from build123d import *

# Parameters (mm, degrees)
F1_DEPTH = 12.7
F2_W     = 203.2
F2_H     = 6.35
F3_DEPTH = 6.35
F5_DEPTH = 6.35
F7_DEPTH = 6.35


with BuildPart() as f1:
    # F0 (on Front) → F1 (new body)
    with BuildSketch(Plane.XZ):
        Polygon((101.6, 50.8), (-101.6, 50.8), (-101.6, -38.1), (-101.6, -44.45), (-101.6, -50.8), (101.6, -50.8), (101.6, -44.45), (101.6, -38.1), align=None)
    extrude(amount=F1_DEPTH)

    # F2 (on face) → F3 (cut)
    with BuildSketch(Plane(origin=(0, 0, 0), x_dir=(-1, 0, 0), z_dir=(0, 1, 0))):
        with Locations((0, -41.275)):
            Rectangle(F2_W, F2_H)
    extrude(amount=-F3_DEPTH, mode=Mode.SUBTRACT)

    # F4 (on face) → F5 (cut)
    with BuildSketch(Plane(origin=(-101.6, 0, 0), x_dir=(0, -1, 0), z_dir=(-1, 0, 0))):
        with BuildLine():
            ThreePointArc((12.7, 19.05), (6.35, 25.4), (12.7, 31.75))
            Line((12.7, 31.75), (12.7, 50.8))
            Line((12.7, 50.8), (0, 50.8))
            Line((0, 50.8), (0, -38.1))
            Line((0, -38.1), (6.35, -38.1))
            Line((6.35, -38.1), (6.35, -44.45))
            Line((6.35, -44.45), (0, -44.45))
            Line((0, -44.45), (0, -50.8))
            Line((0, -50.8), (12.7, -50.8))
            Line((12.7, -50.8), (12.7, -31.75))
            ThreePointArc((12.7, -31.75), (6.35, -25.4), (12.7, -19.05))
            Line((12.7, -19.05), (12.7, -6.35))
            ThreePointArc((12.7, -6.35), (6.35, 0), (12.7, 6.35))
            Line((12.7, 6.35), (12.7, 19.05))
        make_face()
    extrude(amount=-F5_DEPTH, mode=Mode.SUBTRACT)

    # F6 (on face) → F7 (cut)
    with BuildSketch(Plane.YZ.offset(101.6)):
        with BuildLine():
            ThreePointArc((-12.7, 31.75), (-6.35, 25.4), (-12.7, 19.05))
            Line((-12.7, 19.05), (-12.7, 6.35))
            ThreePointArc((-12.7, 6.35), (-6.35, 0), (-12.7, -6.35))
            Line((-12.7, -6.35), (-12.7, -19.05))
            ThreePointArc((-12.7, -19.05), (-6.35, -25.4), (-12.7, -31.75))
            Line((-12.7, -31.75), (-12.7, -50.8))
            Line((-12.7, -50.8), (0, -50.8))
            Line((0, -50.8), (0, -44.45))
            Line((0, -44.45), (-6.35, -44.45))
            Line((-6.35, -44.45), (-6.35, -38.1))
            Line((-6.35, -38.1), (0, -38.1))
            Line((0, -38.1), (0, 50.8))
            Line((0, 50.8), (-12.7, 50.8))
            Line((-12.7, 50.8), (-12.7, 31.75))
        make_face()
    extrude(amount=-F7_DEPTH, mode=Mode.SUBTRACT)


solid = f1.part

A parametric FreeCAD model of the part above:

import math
import FreeCAD as App
import Part
import Sketcher
Q = App.Units.Quantity

doc = App.newDocument("Part")
body = doc.addObject("PartDesign::Body", "Body")

# Sketch on XZ plane
sketch1 = doc.addObject("Sketcher::SketchObject", "Sketch")
body.addObject(sketch1)
sketch1.AttachmentSupport = (doc.XZ_Plane, [""])
sketch1.MapMode = "FlatFace"
sketch1.addGeometry([
    Part.LineSegment(App.Vector(101.6, 50.8, 0), App.Vector(-101.6, 50.8, 0)),
    Part.LineSegment(App.Vector(-101.6, 50.8, 0), App.Vector(-101.6, -50.8, 0)),
    Part.LineSegment(App.Vector(-101.6, -50.8, 0), App.Vector(101.6, -50.8, 0)),
    Part.LineSegment(App.Vector(101.6, -50.8, 0), App.Vector(101.6, 50.8, 0)),
], False)
sketch1.addConstraint([
    Sketcher.Constraint("Coincident", 0, 2, 1, 1),
    Sketcher.Constraint("Coincident", 1, 2, 2, 1),
    Sketcher.Constraint("Coincident", 2, 2, 3, 1),
    Sketcher.Constraint("Coincident", 3, 2, 0, 1),
    Sketcher.Constraint("Horizontal", 0),
    Sketcher.Constraint("Vertical", 1),
    Sketcher.Constraint("Horizontal", 2),
    Sketcher.Constraint("Vertical", 3),
    Sketcher.Constraint("Symmetric", 0, 2, 2, 2, -1, 1),
    Sketcher.Constraint("DistanceX", 0, 2, 0, 1, Q("8 in")),
    Sketcher.Constraint("DistanceY", 1, 2, 1, 1, Q("4 in")),
])
pad1 = doc.addObject("PartDesign::Pad", "Pad")
body.addObject(pad1)
pad1.Profile = sketch1
pad1.Length = Q("0.5 in")

# Sketch on XZ plane
sketch2 = doc.addObject("Sketcher::SketchObject", "Sketch001")
body.addObject(sketch2)
sketch2.AttachmentSupport = (doc.XZ_Plane, [""])
sketch2.MapMode = "FlatFace"
sketch2.addGeometry([
    Part.LineSegment(App.Vector(101.6, -38.1, 0), App.Vector(101.6, -44.45, 0)),
    Part.LineSegment(App.Vector(101.6, -44.45, 0), App.Vector(-101.6, -44.45, 0)),
    Part.LineSegment(App.Vector(-101.6, -44.45, 0), App.Vector(-101.6, -38.1, 0)),
    Part.LineSegment(App.Vector(-101.6, -38.1, 0), App.Vector(101.6, -38.1, 0)),
], False)
sketch2.addConstraint([
    Sketcher.Constraint("Coincident", 0, 2, 1, 1),
    Sketcher.Constraint("Coincident", 1, 2, 2, 1),
    Sketcher.Constraint("Coincident", 2, 2, 3, 1),
    Sketcher.Constraint("Coincident", 3, 2, 0, 1),
    Sketcher.Constraint("Vertical", 0),
    Sketcher.Constraint("Horizontal", 1),
    Sketcher.Constraint("Vertical", 2),
    Sketcher.Constraint("Horizontal", 3),
    Sketcher.Constraint("DistanceX", 1, 2, 1, 1, Q("8 in")),
    Sketcher.Constraint("DistanceX", -1, 1, 0, 2, Q("4 in")),
    Sketcher.Constraint("DistanceY", 0, 2, 0, 1, Q("0.25 in")),
    Sketcher.Constraint("DistanceY", 2, 2, -1, 1, Q("1.5 in")),
])
pocket1 = doc.addObject("PartDesign::Pocket", "Pocket")
body.addObject(pocket1)
pocket1.Profile = sketch2
pocket1.Length = Q("0.25 in")
pocket1.Reversed = True

# Sketch on YZ plane
sketch3 = doc.addObject("Sketcher::SketchObject", "Sketch002")
body.addObject(sketch3)
sketch3.AttachmentSupport = (doc.YZ_Plane, [""])
sketch3.MapMode = "FlatFace"
sketch3.AttachmentOffset = App.Placement(App.Vector(0, 0, -4 * 25.4), App.Rotation())
sketch3.addGeometry([
    Part.ArcOfCircle(Part.Circle(App.Vector(-12.7, 25.4, 0), App.Vector(0, 0, 1), 6.35), math.radians(-90), math.radians(90)),  # 0
    Part.LineSegment(App.Vector(-12.7, 31.75, 0), App.Vector(-12.7, 50.8, 0)),  # 1
    Part.LineSegment(App.Vector(-12.7, 50.8, 0), App.Vector(0, 50.8, 0)),  # 2
    Part.LineSegment(App.Vector(0, 50.8, 0), App.Vector(0, -38.1, 0)),  # 3
    Part.LineSegment(App.Vector(0, -38.1, 0), App.Vector(-6.35, -38.1, 0)),  # 4
    Part.LineSegment(App.Vector(-6.35, -38.1, 0), App.Vector(-6.35, -44.45, 0)),  # 5
    Part.LineSegment(App.Vector(-6.35, -44.45, 0), App.Vector(0, -44.45, 0)),  # 6
    Part.LineSegment(App.Vector(0, -44.45, 0), App.Vector(0, -50.8, 0)),  # 7
    Part.LineSegment(App.Vector(0, -50.8, 0), App.Vector(-12.7, -50.8, 0)),  # 8
    Part.LineSegment(App.Vector(-12.7, -50.8, 0), App.Vector(-12.7, -31.75, 0)),  # 9
    Part.ArcOfCircle(Part.Circle(App.Vector(-12.7, -25.4, 0), App.Vector(0, 0, 1), 6.35), math.radians(-90), math.radians(90)),  # 10
    Part.LineSegment(App.Vector(-12.7, -19.05, 0), App.Vector(-12.7, -6.35, 0)),  # 11
    Part.ArcOfCircle(Part.Circle(App.Vector(-12.7, 0, 0), App.Vector(0, 0, 1), 6.35), math.radians(-90), math.radians(90)),  # 12
    Part.LineSegment(App.Vector(-12.7, 6.35, 0), App.Vector(-12.7, 19.05, 0)),  # 13
], False)
sketch3.addConstraint([
    Sketcher.Constraint("Coincident", 0, 2, 1, 1),
    Sketcher.Constraint("Coincident", 1, 2, 2, 1),
    Sketcher.Constraint("Coincident", 2, 2, 3, 1),
    Sketcher.Constraint("Coincident", 3, 2, 4, 1),
    Sketcher.Constraint("Coincident", 4, 2, 5, 1),
    Sketcher.Constraint("Coincident", 5, 2, 6, 1),
    Sketcher.Constraint("Coincident", 6, 2, 7, 1),
    Sketcher.Constraint("Coincident", 7, 2, 8, 1),
    Sketcher.Constraint("Coincident", 8, 2, 9, 1),
    Sketcher.Constraint("Coincident", 9, 2, 10, 1),
    Sketcher.Constraint("Coincident", 10, 2, 11, 1),
    Sketcher.Constraint("Coincident", 11, 2, 12, 1),
    Sketcher.Constraint("Coincident", 12, 2, 13, 1),
    Sketcher.Constraint("Coincident", 13, 2, 0, 1),
    Sketcher.Constraint("Vertical", 1),
    Sketcher.Constraint("Horizontal", 2),
    Sketcher.Constraint("Vertical", 3),
    Sketcher.Constraint("Horizontal", 4),
    Sketcher.Constraint("Vertical", 5),
    Sketcher.Constraint("Horizontal", 6),
    Sketcher.Constraint("Vertical", 7),
    Sketcher.Constraint("Horizontal", 8),
    Sketcher.Constraint("Vertical", 9),
    Sketcher.Constraint("Vertical", 11),
    Sketcher.Constraint("Vertical", 13),
    Sketcher.Constraint("Equal", 0, 10),
    Sketcher.Constraint("Equal", 10, 12),
    Sketcher.Constraint("Symmetric", 2, 2, 7, 2, -1, 1),
    Sketcher.Constraint("Symmetric", 0, 3, 10, 3, -1),
    Sketcher.Constraint("Symmetric", 11, 2, 12, 2, -1),
    Sketcher.Constraint("PointOnObject", 2, 2, -2),
    Sketcher.Constraint("Vertical", 10, 3, 12, 3),
    Sketcher.Constraint("Vertical", 12, 3, 0, 2),
    Sketcher.Constraint("Vertical", 1, 2, 8, 2),
    Sketcher.Constraint("Vertical", 9, 2, 10, 2),
    Sketcher.Constraint("Equal", 6, 5),
    Sketcher.Constraint("Equal", 5, 7),
    Sketcher.Constraint("Equal", 8, 11),
    Sketcher.Constraint("Radius", 0, Q("0.25 in")),
    Sketcher.Constraint("DistanceX", 2, 1, 2, 2, Q("0.5 in")),
    Sketcher.Constraint("DistanceY", 3, 2, 3, 1, Q("3.5 in")),
    Sketcher.Constraint("DistanceY", -1, 1, 1, 2, Q("2 in")),
])
pocket2 = doc.addObject("PartDesign::Pocket", "Pocket001")
body.addObject(pocket2)
pocket2.Profile = sketch3
pocket2.Length = Q("0.25 in")
pocket2.Reversed = True

# Sketch on YZ plane
sketch4 = doc.addObject("Sketcher::SketchObject", "Sketch003")
body.addObject(sketch4)
sketch4.AttachmentSupport = (doc.YZ_Plane, [""])
sketch4.MapMode = "FlatFace"
sketch4.AttachmentOffset = App.Placement(App.Vector(0, 0, 4 * 25.4), App.Rotation())
sketch4.addGeometry([
    Part.ArcOfCircle(Part.Circle(App.Vector(-12.7, 25.4, 0), App.Vector(0, 0, 1), 6.35), math.radians(-90), math.radians(90)),  # 0
    Part.LineSegment(App.Vector(-12.7, 19.05, 0), App.Vector(-12.7, 6.35, 0)),  # 1
    Part.ArcOfCircle(Part.Circle(App.Vector(-12.7, 0, 0), App.Vector(0, 0, 1), 6.35), math.radians(-90), math.radians(90)),  # 2
    Part.LineSegment(App.Vector(-12.7, -6.35, 0), App.Vector(-12.7, -19.05, 0)),  # 3
    Part.ArcOfCircle(Part.Circle(App.Vector(-12.7, -25.4, 0), App.Vector(0, 0, 1), 6.35), math.radians(-90), math.radians(90)),  # 4
    Part.LineSegment(App.Vector(-12.7, -31.75, 0), App.Vector(-12.7, -50.8, 0)),  # 5
    Part.LineSegment(App.Vector(-12.7, -50.8, 0), App.Vector(0, -50.8, 0)),  # 6
    Part.LineSegment(App.Vector(0, -50.8, 0), App.Vector(0, -44.45, 0)),  # 7
    Part.LineSegment(App.Vector(0, -44.45, 0), App.Vector(-6.35, -44.45, 0)),  # 8
    Part.LineSegment(App.Vector(-6.35, -44.45, 0), App.Vector(-6.35, -38.1, 0)),  # 9
    Part.LineSegment(App.Vector(-6.35, -38.1, 0), App.Vector(0, -38.1, 0)),  # 10
    Part.LineSegment(App.Vector(0, -38.1, 0), App.Vector(0, 50.8, 0)),  # 11
    Part.LineSegment(App.Vector(0, 50.8, 0), App.Vector(-12.7, 50.8, 0)),  # 12
    Part.LineSegment(App.Vector(-12.7, 50.8, 0), App.Vector(-12.7, 31.75, 0)),  # 13
], False)
sketch4.addConstraint([
    Sketcher.Constraint("Coincident", 0, 1, 1, 1),
    Sketcher.Constraint("Coincident", 1, 2, 2, 2),
    Sketcher.Constraint("Coincident", 2, 1, 3, 1),
    Sketcher.Constraint("Coincident", 3, 2, 4, 2),
    Sketcher.Constraint("Coincident", 4, 1, 5, 1),
    Sketcher.Constraint("Coincident", 5, 2, 6, 1),
    Sketcher.Constraint("Coincident", 6, 2, 7, 1),
    Sketcher.Constraint("Coincident", 7, 2, 8, 1),
    Sketcher.Constraint("Coincident", 8, 2, 9, 1),
    Sketcher.Constraint("Coincident", 9, 2, 10, 1),
    Sketcher.Constraint("Coincident", 10, 2, 11, 1),
    Sketcher.Constraint("Coincident", 11, 2, 12, 1),
    Sketcher.Constraint("Coincident", 12, 2, 13, 1),
    Sketcher.Constraint("Coincident", 13, 2, 0, 2),
    Sketcher.Constraint("Vertical", 1),
    Sketcher.Constraint("Vertical", 3),
    Sketcher.Constraint("Vertical", 5),
    Sketcher.Constraint("Horizontal", 6),
    Sketcher.Constraint("Vertical", 7),
    Sketcher.Constraint("Horizontal", 8),
    Sketcher.Constraint("Vertical", 9),
    Sketcher.Constraint("Horizontal", 10),
    Sketcher.Constraint("Vertical", 11),
    Sketcher.Constraint("Horizontal", 12),
    Sketcher.Constraint("Vertical", 13),
    Sketcher.Constraint("Equal", 0, 2),
    Sketcher.Constraint("Equal", 2, 4),
    Sketcher.Constraint("Symmetric", 6, 2, 11, 2, -1, 1),
    Sketcher.Constraint("Symmetric", 0, 3, 4, 3, -1),
    Sketcher.Constraint("Symmetric", 1, 2, 2, 1, -1),
    Sketcher.Constraint("PointOnObject", 6, 2, -2),
    Sketcher.Constraint("Vertical", 0, 3, 2, 3),
    Sketcher.Constraint("Vertical", 4, 3, 0, 1),
    Sketcher.Constraint("Vertical", 3, 2, 4, 1),
    Sketcher.Constraint("Vertical", 5, 2, 12, 2),
    Sketcher.Constraint("Equal", 12, 1),
    Sketcher.Constraint("Equal", 10, 7),
    Sketcher.Constraint("Equal", 7, 9),
    Sketcher.Constraint("Radius", 0, Q("0.25 in")),
    Sketcher.Constraint("DistanceX", 6, 1, 6, 2, Q("0.5 in")),
    Sketcher.Constraint("DistanceY", 11, 1, 11, 2, Q("3.5 in")),
    Sketcher.Constraint("DistanceY", 5, 2, -1, 1, Q("2 in")),
])
pocket3 = doc.addObject("PartDesign::Pocket", "Pocket002")
body.addObject(pocket3)
pocket3.Profile = sketch4
pocket3.Length = Q("0.25 in")

doc.recompute()
